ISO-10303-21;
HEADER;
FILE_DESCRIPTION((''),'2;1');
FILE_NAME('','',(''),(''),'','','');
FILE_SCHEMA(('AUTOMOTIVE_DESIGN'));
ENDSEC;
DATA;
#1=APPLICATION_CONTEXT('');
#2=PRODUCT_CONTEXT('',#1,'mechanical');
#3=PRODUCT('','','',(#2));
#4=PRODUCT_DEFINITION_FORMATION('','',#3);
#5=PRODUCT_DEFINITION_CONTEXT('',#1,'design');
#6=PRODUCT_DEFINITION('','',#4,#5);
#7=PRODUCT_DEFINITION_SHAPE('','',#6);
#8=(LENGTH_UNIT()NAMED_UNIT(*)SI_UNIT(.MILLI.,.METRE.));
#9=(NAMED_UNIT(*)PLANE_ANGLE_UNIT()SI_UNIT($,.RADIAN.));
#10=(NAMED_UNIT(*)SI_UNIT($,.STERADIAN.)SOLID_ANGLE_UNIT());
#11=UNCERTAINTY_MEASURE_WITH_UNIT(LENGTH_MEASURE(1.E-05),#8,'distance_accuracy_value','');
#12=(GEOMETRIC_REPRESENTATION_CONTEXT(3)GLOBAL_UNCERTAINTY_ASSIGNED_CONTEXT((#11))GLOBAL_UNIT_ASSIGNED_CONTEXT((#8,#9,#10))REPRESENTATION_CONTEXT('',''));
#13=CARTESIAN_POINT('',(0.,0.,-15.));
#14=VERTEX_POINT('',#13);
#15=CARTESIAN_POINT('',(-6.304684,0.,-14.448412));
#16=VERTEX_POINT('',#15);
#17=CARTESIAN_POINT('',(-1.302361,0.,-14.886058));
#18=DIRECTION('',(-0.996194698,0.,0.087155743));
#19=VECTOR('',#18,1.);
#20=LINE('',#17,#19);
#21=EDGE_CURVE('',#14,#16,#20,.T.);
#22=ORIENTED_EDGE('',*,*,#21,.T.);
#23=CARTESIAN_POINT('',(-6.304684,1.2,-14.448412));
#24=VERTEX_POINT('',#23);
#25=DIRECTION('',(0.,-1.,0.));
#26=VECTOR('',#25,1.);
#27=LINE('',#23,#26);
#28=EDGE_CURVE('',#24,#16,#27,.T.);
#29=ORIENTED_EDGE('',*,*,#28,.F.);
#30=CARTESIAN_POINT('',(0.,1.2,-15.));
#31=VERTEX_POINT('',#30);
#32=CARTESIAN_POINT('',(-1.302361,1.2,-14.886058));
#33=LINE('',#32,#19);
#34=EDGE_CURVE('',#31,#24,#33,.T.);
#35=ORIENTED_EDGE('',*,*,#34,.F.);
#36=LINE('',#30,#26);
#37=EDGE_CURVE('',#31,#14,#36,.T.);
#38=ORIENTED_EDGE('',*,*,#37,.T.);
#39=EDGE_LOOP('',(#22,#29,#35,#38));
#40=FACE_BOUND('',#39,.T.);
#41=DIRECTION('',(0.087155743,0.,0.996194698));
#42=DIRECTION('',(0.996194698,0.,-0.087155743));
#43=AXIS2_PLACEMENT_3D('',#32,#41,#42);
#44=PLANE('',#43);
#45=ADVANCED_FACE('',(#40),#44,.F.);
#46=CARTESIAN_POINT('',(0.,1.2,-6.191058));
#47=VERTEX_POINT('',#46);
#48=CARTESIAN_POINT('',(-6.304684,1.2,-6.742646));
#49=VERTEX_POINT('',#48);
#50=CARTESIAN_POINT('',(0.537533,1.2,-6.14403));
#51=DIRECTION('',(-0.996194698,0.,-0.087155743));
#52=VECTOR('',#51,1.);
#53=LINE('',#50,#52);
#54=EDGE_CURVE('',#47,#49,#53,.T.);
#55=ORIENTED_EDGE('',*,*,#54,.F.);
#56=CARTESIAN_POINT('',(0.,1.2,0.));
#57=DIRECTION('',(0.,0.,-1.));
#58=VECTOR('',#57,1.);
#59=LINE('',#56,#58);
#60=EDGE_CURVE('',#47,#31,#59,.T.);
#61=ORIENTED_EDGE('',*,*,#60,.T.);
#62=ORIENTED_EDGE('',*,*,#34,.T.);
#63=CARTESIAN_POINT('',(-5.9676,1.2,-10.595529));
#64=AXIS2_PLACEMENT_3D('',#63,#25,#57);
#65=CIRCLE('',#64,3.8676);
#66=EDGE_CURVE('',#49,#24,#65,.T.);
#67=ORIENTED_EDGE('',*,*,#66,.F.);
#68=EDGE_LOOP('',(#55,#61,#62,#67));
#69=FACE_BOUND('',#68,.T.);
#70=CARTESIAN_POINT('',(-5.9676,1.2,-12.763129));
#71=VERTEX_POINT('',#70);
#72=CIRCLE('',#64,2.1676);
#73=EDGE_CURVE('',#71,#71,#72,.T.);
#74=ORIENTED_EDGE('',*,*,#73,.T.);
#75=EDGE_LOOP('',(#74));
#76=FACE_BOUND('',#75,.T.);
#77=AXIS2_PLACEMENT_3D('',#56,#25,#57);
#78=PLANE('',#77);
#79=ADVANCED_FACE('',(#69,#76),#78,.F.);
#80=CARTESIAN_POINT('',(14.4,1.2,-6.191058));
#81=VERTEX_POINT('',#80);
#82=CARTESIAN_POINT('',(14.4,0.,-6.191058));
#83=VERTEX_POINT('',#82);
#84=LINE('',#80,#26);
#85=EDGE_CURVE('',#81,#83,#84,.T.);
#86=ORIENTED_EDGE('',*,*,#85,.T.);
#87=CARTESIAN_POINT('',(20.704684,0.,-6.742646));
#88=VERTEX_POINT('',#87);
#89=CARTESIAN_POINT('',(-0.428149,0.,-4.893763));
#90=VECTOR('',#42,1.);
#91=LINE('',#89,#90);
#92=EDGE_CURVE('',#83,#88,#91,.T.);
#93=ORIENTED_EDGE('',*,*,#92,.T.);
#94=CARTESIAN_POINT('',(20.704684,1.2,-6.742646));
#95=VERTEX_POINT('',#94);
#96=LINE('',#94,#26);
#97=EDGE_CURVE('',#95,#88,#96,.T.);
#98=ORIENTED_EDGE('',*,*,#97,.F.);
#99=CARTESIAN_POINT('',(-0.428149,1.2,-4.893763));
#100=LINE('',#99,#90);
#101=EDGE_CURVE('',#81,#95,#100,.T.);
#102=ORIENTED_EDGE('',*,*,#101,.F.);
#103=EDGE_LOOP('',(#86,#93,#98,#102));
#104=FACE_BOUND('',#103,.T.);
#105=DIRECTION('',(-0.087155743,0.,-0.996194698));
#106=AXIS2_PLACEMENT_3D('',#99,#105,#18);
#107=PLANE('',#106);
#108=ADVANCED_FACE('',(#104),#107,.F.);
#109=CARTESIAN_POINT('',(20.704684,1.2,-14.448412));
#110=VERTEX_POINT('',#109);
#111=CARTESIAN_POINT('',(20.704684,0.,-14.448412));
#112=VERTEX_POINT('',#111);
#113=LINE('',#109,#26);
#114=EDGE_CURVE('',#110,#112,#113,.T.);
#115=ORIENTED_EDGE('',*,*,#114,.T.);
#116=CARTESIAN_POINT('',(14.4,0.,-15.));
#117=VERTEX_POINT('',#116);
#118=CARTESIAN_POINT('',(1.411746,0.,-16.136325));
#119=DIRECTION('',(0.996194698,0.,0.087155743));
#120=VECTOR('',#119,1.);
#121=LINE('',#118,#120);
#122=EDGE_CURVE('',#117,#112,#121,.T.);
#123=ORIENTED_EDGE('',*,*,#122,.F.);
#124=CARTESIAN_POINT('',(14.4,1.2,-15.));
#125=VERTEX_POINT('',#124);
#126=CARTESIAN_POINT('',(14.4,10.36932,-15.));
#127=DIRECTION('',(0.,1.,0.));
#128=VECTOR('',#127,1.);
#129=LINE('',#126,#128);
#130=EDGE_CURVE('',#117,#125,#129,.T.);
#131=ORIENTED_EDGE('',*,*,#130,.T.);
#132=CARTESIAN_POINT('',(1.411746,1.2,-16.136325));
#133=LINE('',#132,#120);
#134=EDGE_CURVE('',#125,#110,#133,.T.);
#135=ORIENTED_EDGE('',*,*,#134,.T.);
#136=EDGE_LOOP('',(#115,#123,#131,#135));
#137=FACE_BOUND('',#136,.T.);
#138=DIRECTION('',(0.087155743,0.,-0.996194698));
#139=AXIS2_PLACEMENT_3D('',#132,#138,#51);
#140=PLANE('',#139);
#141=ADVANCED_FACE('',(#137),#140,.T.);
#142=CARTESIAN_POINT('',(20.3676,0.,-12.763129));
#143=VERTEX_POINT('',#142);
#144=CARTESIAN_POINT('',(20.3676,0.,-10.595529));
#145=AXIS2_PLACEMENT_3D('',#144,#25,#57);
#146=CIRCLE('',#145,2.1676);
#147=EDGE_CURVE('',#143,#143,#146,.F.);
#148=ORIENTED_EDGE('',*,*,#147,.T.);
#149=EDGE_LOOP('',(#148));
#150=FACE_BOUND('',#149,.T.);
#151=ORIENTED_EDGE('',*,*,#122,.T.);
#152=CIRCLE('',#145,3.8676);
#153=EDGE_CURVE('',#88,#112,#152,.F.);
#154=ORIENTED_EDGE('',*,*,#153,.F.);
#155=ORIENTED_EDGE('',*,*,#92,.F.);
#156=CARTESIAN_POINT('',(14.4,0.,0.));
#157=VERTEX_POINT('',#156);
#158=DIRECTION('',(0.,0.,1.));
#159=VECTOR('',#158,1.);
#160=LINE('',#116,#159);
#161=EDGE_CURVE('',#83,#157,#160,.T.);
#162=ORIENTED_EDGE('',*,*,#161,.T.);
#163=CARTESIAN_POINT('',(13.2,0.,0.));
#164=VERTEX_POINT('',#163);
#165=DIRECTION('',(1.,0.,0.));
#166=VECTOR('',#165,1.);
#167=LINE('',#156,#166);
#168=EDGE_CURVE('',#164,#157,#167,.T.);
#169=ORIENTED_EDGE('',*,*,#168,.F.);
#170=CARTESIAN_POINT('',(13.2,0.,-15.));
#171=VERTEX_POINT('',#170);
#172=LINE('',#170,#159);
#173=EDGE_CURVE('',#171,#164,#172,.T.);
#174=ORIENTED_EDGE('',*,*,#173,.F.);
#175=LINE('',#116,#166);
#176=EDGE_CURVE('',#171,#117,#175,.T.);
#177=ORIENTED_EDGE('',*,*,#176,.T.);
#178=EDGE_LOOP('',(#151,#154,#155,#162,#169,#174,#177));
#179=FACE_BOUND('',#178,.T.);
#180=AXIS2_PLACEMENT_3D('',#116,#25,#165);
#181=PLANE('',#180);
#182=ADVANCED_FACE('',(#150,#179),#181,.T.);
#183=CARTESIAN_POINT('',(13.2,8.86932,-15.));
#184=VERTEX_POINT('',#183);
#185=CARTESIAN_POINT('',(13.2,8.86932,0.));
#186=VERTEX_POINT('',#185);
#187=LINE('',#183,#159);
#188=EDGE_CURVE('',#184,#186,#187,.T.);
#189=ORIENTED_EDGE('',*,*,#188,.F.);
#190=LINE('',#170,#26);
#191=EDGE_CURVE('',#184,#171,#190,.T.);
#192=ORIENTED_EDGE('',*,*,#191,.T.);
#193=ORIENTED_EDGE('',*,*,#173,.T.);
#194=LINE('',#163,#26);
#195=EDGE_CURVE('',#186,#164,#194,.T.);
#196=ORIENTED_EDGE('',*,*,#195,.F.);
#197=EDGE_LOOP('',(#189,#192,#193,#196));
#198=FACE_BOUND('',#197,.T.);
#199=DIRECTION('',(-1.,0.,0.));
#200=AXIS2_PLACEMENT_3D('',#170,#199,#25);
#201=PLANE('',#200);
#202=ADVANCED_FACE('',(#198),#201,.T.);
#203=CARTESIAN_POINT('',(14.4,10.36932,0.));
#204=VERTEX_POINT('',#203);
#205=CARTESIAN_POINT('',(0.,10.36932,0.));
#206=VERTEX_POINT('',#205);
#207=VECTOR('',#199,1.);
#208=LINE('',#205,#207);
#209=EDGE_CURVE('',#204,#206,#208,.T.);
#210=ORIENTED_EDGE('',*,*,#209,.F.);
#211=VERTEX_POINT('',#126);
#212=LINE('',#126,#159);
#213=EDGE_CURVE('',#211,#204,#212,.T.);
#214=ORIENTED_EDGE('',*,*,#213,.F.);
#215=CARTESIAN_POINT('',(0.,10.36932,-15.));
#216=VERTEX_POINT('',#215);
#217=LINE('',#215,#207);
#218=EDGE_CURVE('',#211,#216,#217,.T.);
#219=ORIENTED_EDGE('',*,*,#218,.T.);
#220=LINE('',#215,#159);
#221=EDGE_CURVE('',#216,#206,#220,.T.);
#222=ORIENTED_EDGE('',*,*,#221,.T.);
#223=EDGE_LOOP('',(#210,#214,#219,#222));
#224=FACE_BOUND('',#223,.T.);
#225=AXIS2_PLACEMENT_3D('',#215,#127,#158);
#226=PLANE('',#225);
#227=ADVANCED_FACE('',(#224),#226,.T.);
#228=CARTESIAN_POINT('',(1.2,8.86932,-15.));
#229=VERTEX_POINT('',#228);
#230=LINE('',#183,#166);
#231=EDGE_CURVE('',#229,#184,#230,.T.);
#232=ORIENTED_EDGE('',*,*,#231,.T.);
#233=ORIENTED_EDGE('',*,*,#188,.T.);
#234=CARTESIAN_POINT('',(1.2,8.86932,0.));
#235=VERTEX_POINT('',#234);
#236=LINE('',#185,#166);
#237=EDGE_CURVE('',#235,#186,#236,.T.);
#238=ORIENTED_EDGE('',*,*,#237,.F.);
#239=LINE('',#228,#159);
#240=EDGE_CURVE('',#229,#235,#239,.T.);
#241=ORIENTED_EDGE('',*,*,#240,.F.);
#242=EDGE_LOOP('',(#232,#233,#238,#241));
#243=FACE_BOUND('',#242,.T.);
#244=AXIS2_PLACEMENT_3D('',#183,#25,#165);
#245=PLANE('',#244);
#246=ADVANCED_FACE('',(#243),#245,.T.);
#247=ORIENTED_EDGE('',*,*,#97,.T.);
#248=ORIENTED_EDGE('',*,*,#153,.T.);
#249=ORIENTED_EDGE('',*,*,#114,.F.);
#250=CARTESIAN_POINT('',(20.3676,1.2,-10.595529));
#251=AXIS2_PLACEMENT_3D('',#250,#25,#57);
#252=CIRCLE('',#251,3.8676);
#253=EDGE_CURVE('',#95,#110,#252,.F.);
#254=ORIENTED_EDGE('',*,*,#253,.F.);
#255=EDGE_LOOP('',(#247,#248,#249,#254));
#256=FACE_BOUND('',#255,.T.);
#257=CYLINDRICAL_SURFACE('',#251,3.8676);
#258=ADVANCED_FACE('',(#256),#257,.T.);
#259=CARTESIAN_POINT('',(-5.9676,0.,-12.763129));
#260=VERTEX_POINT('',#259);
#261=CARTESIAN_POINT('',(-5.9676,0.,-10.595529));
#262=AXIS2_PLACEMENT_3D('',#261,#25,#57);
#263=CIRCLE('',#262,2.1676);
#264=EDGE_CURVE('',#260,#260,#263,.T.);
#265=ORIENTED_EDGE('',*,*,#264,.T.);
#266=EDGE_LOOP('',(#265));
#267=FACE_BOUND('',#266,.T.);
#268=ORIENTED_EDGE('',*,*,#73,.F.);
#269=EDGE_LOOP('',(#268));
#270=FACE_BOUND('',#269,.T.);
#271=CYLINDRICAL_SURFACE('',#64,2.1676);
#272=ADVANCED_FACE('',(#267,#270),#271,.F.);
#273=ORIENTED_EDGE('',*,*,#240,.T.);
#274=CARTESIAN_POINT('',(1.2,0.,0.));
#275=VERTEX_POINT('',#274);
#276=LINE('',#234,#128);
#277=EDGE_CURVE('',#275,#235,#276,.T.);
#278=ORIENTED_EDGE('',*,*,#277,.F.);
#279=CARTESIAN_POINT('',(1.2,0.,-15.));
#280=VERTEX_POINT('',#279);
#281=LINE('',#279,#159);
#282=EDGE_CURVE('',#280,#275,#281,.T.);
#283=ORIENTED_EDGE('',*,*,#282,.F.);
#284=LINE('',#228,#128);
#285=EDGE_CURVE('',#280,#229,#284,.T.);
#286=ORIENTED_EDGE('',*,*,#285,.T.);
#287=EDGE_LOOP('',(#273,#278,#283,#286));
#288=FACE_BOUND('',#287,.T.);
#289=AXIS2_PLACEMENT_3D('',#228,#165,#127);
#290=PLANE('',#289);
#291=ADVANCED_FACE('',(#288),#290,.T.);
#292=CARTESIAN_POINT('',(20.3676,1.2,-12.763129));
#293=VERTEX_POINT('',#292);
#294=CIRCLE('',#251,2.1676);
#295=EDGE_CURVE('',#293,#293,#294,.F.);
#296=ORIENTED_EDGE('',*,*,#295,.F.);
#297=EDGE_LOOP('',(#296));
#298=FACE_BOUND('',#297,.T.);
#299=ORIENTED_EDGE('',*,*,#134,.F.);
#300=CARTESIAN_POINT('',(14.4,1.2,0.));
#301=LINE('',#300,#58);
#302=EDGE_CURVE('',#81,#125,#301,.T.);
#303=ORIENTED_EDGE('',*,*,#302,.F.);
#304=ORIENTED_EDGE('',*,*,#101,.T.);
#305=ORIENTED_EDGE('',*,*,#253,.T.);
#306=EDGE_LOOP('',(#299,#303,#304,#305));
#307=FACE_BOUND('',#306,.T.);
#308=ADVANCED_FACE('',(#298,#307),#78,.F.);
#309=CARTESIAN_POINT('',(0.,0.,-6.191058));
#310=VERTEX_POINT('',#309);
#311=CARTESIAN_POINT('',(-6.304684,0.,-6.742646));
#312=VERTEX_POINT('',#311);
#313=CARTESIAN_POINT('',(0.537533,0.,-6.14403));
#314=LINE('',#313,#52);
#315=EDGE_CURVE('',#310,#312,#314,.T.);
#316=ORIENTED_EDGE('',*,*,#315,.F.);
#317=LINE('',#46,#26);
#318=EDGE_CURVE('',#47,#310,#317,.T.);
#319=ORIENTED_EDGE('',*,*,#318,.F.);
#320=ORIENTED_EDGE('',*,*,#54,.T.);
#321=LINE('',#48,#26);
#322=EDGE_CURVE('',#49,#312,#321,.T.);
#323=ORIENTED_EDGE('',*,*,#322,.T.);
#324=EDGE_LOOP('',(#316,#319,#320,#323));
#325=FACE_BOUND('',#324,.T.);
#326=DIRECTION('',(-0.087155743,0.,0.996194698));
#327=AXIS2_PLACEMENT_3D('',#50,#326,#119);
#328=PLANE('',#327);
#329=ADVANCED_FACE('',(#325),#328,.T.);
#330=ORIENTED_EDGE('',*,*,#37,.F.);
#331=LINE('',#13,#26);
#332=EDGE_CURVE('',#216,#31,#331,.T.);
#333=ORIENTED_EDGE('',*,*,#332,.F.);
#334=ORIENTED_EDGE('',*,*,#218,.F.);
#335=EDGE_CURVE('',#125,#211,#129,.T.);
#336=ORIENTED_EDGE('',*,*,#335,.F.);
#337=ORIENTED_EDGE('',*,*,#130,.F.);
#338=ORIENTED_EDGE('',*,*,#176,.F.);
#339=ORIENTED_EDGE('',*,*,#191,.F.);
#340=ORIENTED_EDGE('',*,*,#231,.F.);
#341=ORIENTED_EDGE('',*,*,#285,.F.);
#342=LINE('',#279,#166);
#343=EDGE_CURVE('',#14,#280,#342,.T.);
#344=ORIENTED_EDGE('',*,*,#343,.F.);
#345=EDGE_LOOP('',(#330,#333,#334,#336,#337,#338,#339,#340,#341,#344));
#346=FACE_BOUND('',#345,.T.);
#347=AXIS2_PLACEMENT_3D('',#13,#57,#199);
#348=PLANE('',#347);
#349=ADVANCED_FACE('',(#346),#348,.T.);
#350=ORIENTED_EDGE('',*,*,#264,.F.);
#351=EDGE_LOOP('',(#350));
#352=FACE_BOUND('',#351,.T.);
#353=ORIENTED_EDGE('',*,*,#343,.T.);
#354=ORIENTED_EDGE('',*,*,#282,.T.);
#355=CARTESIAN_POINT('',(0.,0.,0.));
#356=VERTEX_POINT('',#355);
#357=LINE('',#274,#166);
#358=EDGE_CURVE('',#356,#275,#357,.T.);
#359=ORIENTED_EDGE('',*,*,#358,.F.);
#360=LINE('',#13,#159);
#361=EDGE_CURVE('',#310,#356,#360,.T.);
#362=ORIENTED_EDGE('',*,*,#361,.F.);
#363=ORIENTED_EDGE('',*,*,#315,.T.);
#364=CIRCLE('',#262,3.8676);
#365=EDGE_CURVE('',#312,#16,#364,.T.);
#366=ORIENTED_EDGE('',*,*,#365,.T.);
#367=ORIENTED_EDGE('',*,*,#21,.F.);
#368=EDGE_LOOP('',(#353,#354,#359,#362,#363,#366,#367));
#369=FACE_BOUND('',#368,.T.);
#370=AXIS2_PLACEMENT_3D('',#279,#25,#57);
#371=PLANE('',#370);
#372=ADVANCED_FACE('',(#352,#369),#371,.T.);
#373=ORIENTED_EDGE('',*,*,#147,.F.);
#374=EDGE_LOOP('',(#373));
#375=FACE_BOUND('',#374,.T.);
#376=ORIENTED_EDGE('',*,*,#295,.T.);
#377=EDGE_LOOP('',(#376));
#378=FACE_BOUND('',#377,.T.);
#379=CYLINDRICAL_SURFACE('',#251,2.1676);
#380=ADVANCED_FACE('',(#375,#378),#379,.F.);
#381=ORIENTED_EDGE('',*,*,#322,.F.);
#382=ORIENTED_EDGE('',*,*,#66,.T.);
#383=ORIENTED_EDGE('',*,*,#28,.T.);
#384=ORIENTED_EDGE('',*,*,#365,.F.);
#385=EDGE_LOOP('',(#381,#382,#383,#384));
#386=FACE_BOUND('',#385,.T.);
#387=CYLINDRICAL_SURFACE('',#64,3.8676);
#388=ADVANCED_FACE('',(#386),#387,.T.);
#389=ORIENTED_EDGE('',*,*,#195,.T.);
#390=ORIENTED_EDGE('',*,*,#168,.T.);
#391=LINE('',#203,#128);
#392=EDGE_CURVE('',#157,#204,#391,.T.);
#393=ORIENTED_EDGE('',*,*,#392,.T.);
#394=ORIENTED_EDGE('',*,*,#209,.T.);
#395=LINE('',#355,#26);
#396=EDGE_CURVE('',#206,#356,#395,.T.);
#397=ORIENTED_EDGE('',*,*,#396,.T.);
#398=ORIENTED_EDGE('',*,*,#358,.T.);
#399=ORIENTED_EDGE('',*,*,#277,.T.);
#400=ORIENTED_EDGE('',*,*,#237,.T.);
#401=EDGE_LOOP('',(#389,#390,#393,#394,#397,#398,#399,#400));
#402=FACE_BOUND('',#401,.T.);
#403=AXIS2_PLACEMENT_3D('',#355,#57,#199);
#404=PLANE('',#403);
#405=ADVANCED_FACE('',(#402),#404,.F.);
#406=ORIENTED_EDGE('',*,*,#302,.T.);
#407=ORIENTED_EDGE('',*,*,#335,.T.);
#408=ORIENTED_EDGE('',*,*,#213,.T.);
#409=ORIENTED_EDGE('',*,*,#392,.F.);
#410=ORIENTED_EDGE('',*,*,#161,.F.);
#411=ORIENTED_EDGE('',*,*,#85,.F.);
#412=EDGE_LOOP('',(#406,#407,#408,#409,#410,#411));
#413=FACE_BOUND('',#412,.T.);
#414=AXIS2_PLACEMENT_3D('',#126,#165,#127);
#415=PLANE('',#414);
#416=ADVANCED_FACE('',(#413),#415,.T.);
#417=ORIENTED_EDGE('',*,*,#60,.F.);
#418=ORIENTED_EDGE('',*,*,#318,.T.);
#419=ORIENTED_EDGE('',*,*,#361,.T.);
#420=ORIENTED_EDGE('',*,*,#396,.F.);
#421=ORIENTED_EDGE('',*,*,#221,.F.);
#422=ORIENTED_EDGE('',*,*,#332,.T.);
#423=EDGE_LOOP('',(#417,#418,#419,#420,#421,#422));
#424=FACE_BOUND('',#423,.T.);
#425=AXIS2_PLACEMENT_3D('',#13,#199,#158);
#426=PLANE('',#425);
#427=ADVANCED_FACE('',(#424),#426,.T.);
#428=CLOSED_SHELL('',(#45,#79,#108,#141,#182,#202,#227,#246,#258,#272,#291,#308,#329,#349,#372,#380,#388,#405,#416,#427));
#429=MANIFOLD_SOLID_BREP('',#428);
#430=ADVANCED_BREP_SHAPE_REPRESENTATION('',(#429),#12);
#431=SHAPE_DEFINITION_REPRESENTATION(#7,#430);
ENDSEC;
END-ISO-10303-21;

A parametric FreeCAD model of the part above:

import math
import FreeCAD as App
import Part
import Sketcher

V = App.Vector
Q = App.Units.Quantity


def add_polygon(sketch, points):
    """Adds a closed chain of lines whose ends are joined by coincident constraints."""
    first, n = sketch.GeometryCount, len(points)
    for a, b in zip(points, points[1:] + points[:1]):
        sketch.addGeometry(Part.LineSegment(App.Vector(*a, 0), App.Vector(*b, 0)), False)
    for i in range(n):
        sketch.addConstraint(Sketcher.Constraint("Coincident", first + i, 2, first + (i + 1) % n, 1))

doc = App.newDocument("Part")
body = doc.addObject("PartDesign::Body", "Body")

sketch1 = doc.addObject("Sketcher::SketchObject", "Sketch")
body.addObject(sketch1)
sketch1.AttachmentSupport = (doc.XY_Plane, [""])
sketch1.MapMode = "FlatFace"
add_polygon(sketch1, [(0, 10.4), (0, 0), (1.2, 0), (1.2, 8.9), (13.2, 8.9), (13.2, 0), (14.4, 0), (14.4, 10.4)])
sketch1.addConstraint([
    Sketcher.Constraint("Vertical", 0),
    Sketcher.Constraint("Horizontal", 1),
    Sketcher.Constraint("Vertical", 2),
    Sketcher.Constraint("Horizontal", 3),
    Sketcher.Constraint("Vertical", 4),
    Sketcher.Constraint("Horizontal", 5),
    Sketcher.Constraint("Vertical", 6),
    Sketcher.Constraint("Horizontal", 7),
    Sketcher.Constraint("Coincident", 0, 2, -1, 1),
    Sketcher.Constraint("PointOnObject", 4, 2, -1),
    Sketcher.Constraint("Equal", 1, 5),
    Sketcher.Constraint("DistanceX", 3, 1, 3, 2, Q("12 mm")),
    Sketcher.Constraint("DistanceX", 1, 1, 1, 2, Q("1.2 mm")),
    Sketcher.Constraint("DistanceY", 3, 2, 6, 2, Q("1.5 mm")),
    Sketcher.Constraint("DistanceY", 0, 2, 0, 1, Q("10.36932 mm")),
])
pad1 = doc.addObject("PartDesign::Pad", "Pad")
body.addObject(pad1)
pad1.Profile = sketch1
pad1.Length = 15
pad1.Reversed = True

sketch2 = doc.addObject("Sketcher::SketchObject", "Sketch001")
body.addObject(sketch2)
sketch2.AttachmentSupport = (doc.XZ_Plane, [""])
sketch2.MapMode = "FlatFace"
sketch2.addGeometry([
    Part.ArcOfCircle(Part.Circle(V(20.4, -10.6, 0), V(0, 0, 1), 3.9), math.radians(-85), math.radians(85)),
    Part.LineSegment(V(20.7, -6.7, 0), V(14.4, -6.2, 0)),
    Part.LineSegment(V(14.4, -6.2, 0), V(14.4, -15, 0)),
    Part.LineSegment(V(14.4, -15, 0), V(20.7, -14.4, 0)),
    Part.Circle(V(20.4, -10.6, 0), V(0, 0, 1), 2.2),
    Part.LineSegment(V(-6.3, -14.4, 0), V(0, -15, 0)),
    Part.LineSegment(V(0, -15, 0), V(0, -6.2, 0)),
    Part.LineSegment(V(0, -6.2, 0), V(-6.3, -6.7, 0)),
    Part.ArcOfCircle(Part.Circle(V(-6, -10.6, 0), V(0, 0, 1), 3.9), math.radians(95), math.radians(265)),
    Part.Circle(V(-6, -10.6, 0), V(0, 0, 1), 2.2),
], False)
sketch2.addConstraint([
    Sketcher.Constraint("Tangent", 0, 2, 1, 1),
    Sketcher.Constraint("Coincident", 1, 2, 2, 1),
    Sketcher.Constraint("Coincident", 2, 2, 3, 1),
    Sketcher.Constraint("Tangent", 3, 2, 0, 1),
    Sketcher.Constraint("Coincident", 5, 2, 6, 1),
    Sketcher.Constraint("Coincident", 6, 2, 7, 1),
    Sketcher.Constraint("Tangent", 7, 2, 8, 1),
    Sketcher.Constraint("Tangent", 8, 2, 5, 1),
    Sketcher.Constraint("Vertical", 2),
    Sketcher.Constraint("Vertical", 6),
    Sketcher.Constraint("Coincident", 4, 3, 0, 3),
    Sketcher.Constraint("Coincident", 9, 3, 8, 3),
    Sketcher.Constraint("Equal", 0, 8),
    Sketcher.Constraint("Equal", 4, 9),
    Sketcher.Constraint("PointOnObject", 5, 2, -2),
    Sketcher.Constraint("Parallel", 1, 5),
    Sketcher.Constraint("Parallel", 3, 7),
    Sketcher.Constraint("Horizontal", 4, 3, 8, 3),
    Sketcher.Constraint("Horizontal", 2, 2, 5, 2),
    Sketcher.Constraint("Horizontal", 1, 2, 6, 2),
    Sketcher.Constraint("Angle", 1, Q("175 deg")),
    Sketcher.Constraint("DistanceY", 2, 2, -1, 1, Q("15 mm")),
    Sketcher.Constraint("Diameter", 4, Q("4.3352 mm")),
    Sketcher.Constraint("DistanceX", -1, 1, 1, 2, Q("14.4 mm")),
    Sketcher.Constraint("Radius", 0, Q("3.8676 mm")),
    Sketcher.Constraint("DistanceX", -1, 1, 0, 3, Q("20.3676 mm")),
])
pad2 = doc.addObject("PartDesign::Pad", "Pad001")
body.addObject(pad2)
pad2.Profile = sketch2
pad2.Length = 1.2
pad2.Reversed = True

doc.recompute()
